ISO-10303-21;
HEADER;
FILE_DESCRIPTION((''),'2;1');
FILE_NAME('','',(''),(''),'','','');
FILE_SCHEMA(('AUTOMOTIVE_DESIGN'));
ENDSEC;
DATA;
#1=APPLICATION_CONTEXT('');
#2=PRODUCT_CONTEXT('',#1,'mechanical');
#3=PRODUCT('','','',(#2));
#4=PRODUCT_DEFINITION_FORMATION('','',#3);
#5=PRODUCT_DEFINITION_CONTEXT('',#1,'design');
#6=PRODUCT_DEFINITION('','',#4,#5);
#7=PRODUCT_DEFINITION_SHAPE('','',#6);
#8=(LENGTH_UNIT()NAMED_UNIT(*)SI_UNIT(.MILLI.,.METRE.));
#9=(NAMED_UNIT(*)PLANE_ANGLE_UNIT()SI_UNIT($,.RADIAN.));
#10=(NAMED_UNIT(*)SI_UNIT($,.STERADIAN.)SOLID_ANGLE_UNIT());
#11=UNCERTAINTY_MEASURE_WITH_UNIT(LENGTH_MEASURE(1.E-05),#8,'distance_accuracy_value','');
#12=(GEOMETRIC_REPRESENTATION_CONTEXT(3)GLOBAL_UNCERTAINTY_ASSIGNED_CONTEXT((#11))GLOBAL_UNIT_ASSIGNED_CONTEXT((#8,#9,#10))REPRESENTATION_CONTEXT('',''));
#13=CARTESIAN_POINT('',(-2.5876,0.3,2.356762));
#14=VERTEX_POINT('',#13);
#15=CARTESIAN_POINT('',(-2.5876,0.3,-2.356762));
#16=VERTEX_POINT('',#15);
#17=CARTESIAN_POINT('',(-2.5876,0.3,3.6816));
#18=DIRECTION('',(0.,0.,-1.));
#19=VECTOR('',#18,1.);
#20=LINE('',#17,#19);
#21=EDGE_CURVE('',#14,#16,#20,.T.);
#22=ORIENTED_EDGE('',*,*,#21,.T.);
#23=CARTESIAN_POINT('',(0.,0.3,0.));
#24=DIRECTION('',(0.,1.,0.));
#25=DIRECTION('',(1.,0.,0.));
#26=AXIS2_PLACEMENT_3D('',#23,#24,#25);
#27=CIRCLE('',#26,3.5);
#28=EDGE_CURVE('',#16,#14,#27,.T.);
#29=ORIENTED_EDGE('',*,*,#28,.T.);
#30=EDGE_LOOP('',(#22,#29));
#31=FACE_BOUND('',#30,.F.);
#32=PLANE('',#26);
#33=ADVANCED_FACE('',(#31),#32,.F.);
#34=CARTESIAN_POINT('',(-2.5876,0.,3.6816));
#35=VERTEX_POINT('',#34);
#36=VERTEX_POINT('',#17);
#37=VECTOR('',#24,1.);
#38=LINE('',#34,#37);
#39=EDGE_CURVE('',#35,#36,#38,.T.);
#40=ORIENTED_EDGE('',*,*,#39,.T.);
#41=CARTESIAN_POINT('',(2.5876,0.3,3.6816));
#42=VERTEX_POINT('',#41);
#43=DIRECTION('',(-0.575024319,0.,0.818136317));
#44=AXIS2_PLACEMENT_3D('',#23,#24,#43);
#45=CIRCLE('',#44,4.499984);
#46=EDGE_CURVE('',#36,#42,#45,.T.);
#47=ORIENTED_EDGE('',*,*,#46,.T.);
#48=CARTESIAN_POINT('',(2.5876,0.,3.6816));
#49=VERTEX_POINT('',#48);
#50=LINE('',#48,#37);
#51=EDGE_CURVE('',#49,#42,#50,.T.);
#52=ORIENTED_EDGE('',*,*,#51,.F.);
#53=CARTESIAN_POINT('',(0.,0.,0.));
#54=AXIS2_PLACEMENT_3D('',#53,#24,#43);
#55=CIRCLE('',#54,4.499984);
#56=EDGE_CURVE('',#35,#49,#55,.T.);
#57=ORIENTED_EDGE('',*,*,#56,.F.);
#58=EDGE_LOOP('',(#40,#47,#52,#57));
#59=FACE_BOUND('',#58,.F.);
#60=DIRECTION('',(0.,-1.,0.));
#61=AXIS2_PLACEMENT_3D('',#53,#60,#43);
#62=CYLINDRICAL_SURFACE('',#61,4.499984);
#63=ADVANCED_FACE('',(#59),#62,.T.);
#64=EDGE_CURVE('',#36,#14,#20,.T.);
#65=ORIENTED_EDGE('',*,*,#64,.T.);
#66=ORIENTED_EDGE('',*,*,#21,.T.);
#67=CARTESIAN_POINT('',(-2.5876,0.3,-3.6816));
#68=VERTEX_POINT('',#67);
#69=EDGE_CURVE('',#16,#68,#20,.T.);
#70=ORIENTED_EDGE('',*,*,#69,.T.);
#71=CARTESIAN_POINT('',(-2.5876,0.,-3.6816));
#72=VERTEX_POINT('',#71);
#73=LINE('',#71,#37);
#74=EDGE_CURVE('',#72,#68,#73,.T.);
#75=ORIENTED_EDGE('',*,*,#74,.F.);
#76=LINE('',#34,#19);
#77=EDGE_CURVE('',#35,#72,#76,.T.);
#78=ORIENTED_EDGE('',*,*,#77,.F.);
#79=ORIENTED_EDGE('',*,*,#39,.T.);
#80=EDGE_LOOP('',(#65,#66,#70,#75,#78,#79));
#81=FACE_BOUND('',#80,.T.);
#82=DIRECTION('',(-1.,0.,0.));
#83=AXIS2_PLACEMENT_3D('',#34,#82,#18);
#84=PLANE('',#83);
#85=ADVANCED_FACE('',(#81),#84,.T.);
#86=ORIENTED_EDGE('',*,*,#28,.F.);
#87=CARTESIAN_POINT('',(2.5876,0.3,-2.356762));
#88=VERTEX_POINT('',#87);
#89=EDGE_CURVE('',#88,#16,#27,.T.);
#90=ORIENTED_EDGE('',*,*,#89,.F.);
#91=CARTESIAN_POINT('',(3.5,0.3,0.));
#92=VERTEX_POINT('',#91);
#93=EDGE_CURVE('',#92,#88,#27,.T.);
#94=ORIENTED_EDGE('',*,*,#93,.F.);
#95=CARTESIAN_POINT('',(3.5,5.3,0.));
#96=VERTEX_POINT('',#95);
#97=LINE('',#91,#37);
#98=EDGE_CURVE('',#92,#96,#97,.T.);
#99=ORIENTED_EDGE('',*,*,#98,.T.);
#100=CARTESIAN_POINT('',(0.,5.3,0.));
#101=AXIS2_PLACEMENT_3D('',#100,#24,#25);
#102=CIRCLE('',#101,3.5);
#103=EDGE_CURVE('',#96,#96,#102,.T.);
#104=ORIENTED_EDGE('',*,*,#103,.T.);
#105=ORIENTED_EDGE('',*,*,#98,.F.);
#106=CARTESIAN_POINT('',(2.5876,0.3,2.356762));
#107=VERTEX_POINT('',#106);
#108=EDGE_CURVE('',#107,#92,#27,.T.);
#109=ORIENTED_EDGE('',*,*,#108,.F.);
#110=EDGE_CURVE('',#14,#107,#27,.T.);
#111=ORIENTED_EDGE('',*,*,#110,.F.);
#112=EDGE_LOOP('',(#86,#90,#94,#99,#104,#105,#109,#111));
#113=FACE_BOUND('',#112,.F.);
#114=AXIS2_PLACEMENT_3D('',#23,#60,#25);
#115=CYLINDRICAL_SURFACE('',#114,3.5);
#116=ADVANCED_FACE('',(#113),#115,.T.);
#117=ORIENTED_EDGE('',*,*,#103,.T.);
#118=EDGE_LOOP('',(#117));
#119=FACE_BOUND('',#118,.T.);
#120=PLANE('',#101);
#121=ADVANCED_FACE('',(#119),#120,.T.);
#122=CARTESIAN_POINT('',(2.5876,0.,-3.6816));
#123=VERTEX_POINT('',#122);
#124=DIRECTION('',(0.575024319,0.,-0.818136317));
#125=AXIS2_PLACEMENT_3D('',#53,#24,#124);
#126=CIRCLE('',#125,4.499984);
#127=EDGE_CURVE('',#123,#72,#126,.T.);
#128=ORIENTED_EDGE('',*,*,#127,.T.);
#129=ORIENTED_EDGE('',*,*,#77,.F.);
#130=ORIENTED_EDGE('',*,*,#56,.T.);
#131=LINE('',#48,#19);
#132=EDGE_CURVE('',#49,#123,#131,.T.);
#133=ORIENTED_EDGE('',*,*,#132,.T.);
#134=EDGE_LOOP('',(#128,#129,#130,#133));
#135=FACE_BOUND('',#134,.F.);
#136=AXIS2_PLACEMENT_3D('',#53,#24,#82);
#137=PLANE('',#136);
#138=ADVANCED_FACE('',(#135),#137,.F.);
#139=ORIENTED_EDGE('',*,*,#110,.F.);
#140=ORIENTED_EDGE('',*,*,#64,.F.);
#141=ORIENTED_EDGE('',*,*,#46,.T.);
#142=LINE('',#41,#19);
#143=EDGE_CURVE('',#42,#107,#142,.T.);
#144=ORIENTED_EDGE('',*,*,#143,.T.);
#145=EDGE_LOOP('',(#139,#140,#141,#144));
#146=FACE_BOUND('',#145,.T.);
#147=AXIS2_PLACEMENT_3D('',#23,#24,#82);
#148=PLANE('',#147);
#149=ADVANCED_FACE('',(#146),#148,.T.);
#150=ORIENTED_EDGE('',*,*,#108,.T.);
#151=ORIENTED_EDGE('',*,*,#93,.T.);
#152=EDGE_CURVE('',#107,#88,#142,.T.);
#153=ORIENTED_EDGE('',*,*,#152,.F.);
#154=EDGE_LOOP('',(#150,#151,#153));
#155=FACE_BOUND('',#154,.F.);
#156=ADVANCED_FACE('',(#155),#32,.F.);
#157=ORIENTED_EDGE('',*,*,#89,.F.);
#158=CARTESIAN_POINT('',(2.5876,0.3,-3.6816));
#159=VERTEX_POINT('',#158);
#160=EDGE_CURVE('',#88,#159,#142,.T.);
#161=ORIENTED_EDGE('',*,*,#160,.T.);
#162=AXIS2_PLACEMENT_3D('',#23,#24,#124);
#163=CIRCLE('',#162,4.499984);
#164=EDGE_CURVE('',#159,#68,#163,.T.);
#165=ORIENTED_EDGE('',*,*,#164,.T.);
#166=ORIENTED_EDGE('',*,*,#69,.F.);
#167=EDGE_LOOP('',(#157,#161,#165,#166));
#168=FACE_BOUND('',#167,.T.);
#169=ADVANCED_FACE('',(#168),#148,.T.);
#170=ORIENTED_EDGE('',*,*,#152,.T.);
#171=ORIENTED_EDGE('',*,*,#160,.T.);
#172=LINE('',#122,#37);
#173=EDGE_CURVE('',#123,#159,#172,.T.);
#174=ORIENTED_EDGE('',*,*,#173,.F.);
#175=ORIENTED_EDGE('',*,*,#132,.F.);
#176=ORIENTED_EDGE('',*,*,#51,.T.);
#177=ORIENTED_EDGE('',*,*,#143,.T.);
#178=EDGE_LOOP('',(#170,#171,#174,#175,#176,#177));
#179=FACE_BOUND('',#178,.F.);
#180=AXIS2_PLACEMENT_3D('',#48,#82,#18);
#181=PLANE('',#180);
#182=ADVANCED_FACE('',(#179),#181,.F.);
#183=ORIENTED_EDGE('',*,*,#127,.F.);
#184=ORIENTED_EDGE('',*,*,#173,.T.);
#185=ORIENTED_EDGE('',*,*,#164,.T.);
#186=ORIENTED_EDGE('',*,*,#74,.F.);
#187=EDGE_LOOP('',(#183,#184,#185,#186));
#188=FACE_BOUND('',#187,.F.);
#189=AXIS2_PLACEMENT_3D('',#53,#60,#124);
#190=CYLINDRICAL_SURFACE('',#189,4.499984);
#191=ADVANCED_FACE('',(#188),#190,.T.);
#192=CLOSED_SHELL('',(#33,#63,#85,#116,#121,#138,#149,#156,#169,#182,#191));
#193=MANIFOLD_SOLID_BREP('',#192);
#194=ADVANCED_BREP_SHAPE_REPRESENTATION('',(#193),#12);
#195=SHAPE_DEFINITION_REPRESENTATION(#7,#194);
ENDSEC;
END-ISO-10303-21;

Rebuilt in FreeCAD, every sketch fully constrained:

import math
import FreeCAD as App
import Part
import Sketcher

V = App.Vector

doc = App.newDocument("Part")
body = doc.addObject("PartDesign::Body", "Body")

sketch1 = body.newObject("Sketcher::SketchObject", "Sketch")
sketch1.AttachmentSupport = (doc.getObject("XZ_Plane"), [""])
sketch1.MapMode = "FlatFace"
sketch1.addGeometry(Part.LineSegment(V(-2.6, -3.7, 0), V(-2.6, 3.7, 0)), False)
sketch1.addGeometry(Part.ArcOfCircle(Part.Circle(V(0, 0, 0), V(0, 0, 1), 4.5), math.radians(55), math.radians(125)), False)
sketch1.addGeometry(Part.LineSegment(V(2.6, 3.7, 0), V(2.6, -3.7, 0)), False)
sketch1.addGeometry(Part.ArcOfCircle(Part.Circle(V(0, 0, 0), V(0, 0, 1), 4.5), math.radians(-125), math.radians(-55)), False)
sketch1.addConstraint(Sketcher.Constraint("Coincident", 0, 2, 1, 2))
sketch1.addConstraint(Sketcher.Constraint("Coincident", 1, 1, 2, 1))
sketch1.addConstraint(Sketcher.Constraint("Coincident", 2, 2, 3, 2))
sketch1.addConstraint(Sketcher.Constraint("Coincident", 3, 1, 0, 1))
sketch1.addConstraint(Sketcher.Constraint("Vertical", 0))
sketch1.addConstraint(Sketcher.Constraint("Vertical", 2))
sketch1.addConstraint(Sketcher.Constraint("Coincident", 1, 3, -1, 1))
sketch1.addConstraint(Sketcher.Constraint("Coincident", 3, 3, -1, 1))
sketch1.addConstraint(Sketcher.Constraint("Equal", 1, 3))
sketch1.addConstraint(Sketcher.Constraint("Horizontal", 0, 2, 1, 1))
sketch1.addConstraint(Sketcher.Constraint("Radius", 1, 4.5))
sketch1.addConstraint(Sketcher.Constraint("DistanceY", 0, 1, 0, 2, 7.3632))
pad1 = body.newObject("PartDesign::Pad", "Pad")
pad1.Profile = sketch1
pad1.Length = 0.3
pad1.Reversed = True

sketch2 = body.newObject("Sketcher::SketchObject", "Sketch001")
sketch2.AttachmentSupport = (doc.getObject("XZ_Plane"), [""])
sketch2.MapMode = "FlatFace"
sketch2.AttachmentOffset = App.Placement(V(0, 0, -0.3), App.Rotation())
sketch2.addGeometry(Part.Circle(V(0, 0, 0), V(0, 0, 1), 3.5), False)
sketch2.addConstraint(Sketcher.Constraint("Coincident", 0, 3, -1, 1))
sketch2.addConstraint(Sketcher.Constraint("Diameter", 0, 7.0))
pad2 = body.newObject("PartDesign::Pad", "Pad001")
pad2.Profile = sketch2
pad2.Length = 5
pad2.Reversed = True

doc.recompute()
